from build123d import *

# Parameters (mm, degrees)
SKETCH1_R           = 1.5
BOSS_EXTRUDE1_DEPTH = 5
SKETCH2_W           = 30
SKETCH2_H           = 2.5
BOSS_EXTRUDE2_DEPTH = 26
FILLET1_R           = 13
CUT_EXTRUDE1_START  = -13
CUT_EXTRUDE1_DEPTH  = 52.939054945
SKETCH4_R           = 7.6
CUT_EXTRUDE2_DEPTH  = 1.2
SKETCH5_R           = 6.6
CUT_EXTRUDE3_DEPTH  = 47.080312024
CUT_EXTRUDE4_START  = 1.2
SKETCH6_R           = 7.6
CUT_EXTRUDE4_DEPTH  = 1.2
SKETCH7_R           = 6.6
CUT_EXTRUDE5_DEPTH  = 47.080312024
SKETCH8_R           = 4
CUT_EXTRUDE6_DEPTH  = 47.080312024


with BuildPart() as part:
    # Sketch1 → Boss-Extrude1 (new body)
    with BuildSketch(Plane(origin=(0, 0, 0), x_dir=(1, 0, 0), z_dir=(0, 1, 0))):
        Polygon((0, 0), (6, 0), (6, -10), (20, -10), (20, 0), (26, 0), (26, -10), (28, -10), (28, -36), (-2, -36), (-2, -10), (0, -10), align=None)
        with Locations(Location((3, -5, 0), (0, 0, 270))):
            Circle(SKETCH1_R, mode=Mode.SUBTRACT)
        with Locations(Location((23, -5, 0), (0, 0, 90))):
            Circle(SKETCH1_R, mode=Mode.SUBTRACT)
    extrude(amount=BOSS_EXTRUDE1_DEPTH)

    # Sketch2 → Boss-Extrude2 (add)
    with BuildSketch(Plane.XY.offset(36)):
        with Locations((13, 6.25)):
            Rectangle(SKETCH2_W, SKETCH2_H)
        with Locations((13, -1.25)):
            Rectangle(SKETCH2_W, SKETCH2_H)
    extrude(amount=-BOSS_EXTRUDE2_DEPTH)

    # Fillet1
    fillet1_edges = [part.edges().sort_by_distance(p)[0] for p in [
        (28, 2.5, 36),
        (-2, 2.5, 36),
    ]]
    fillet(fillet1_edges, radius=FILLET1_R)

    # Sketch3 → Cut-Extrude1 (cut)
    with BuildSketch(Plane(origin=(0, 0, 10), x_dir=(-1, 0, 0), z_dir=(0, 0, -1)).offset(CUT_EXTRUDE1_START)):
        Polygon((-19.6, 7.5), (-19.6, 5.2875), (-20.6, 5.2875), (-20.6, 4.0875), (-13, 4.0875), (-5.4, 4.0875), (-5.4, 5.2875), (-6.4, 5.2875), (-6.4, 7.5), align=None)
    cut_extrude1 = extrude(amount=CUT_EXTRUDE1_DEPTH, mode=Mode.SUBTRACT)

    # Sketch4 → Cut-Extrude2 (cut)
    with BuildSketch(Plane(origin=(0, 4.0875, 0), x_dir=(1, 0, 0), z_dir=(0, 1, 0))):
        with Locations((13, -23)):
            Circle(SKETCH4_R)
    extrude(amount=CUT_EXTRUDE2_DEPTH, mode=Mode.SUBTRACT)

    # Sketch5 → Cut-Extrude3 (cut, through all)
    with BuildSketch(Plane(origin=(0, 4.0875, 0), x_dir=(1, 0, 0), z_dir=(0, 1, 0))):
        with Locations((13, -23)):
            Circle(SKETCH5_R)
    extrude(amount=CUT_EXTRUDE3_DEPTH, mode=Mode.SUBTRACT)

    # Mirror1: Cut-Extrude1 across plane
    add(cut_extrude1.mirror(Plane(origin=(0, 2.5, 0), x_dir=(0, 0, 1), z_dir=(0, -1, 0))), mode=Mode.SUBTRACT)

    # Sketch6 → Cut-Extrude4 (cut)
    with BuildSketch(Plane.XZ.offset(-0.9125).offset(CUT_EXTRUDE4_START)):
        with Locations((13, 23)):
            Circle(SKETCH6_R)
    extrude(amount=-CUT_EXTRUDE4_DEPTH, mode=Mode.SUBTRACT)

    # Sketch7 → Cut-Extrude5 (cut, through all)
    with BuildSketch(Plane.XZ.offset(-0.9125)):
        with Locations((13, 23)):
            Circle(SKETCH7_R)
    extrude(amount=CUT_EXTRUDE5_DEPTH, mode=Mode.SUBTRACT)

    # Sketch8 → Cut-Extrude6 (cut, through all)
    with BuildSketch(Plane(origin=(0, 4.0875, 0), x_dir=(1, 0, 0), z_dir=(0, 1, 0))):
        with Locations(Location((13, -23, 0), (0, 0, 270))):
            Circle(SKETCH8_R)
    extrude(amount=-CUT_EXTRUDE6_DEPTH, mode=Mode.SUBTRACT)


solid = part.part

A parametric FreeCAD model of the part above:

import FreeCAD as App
import Part
import Sketcher

V = App.Vector


def edges_at(feature, points):
    """Names of the edges that pass closest to the given points."""
    edges = feature.Shape.Edges
    near = lambda p: min(range(len(edges)), key=lambda i: edges[i].distToShape(Part.Vertex(*p))[0])
    return sorted({f"Edge{near(p) + 1}" for p in points})

doc = App.newDocument("Part")
body = doc.addObject("PartDesign::Body", "Body")

# Sketch on XZ plane
sketch1 = body.newObject("Sketcher::SketchObject", "Sketch")
sketch1.AttachmentSupport = (doc.getObject("XZ_Plane"), [""])
sketch1.MapMode = "FlatFace"
sketch1.addGeometry(Part.LineSegment(V(6, 0, 0), V(0, 0, 0)), False)
sketch1.addGeometry(Part.LineSegment(V(0, 0, 0), V(0, 10, 0)), False)
sketch1.addGeometry(Part.LineSegment(V(0, 10, 0), V(-2, 10, 0)), False)
sketch1.addGeometry(Part.LineSegment(V(-2, 10, 0), V(-2, 36, 0)), False)
sketch1.addGeometry(Part.LineSegment(V(-2, 36, 0), V(28, 36, 0)), False)
sketch1.addGeometry(Part.LineSegment(V(28, 36, 0), V(28, 10, 0)), False)
sketch1.addGeometry(Part.LineSegment(V(28, 10, 0), V(26, 10, 0)), False)
sketch1.addGeometry(Part.LineSegment(V(26, 10, 0), V(26, 0, 0)), False)
sketch1.addGeometry(Part.LineSegment(V(26, 0, 0), V(20, 0, 0)), False)
sketch1.addGeometry(Part.LineSegment(V(20, 0, 0), V(20, 10, 0)), False)
sketch1.addGeometry(Part.LineSegment(V(20, 10, 0), V(6, 10, 0)), False)
sketch1.addGeometry(Part.LineSegment(V(6, 10, 0), V(6, 0, 0)), False)
sketch1.addGeometry(Part.Circle(V(23, 5, 0), V(0, 0, 1), 1.5), False)
sketch1.addGeometry(Part.Circle(V(3, 5, 0), V(0, 0, 1), 1.5), False)
sketch1.addConstraint(Sketcher.Constraint("Coincident", 0, 2, 1, 1))
sketch1.addConstraint(Sketcher.Constraint("Coincident", 1, 2, 2, 1))
sketch1.addConstraint(Sketcher.Constraint("Coincident", 2, 2, 3, 1))
sketch1.addConstraint(Sketcher.Constraint("Coincident", 3, 2, 4, 1))
sketch1.addConstraint(Sketcher.Constraint("Coincident", 4, 2, 5, 1))
sketch1.addConstraint(Sketcher.Constraint("Coincident", 5, 2, 6, 1))
sketch1.addConstraint(Sketcher.Constraint("Coincident", 6, 2, 7, 1))
sketch1.addConstraint(Sketcher.Constraint("Coincident", 7, 2, 8, 1))
sketch1.addConstraint(Sketcher.Constraint("Coincident", 8, 2, 9, 1))
sketch1.addConstraint(Sketcher.Constraint("Coincident", 9, 2, 10, 1))
sketch1.addConstraint(Sketcher.Constraint("Coincident", 10, 2, 11, 1))
sketch1.addConstraint(Sketcher.Constraint("Coincident", 11, 2, 0, 1))
sketch1.addConstraint(Sketcher.Constraint("Horizontal", 0))
sketch1.addConstraint(Sketcher.Constraint("Vertical", 1))
sketch1.addConstraint(Sketcher.Constraint("Horizontal", 2))
sketch1.addConstraint(Sketcher.Constraint("Vertical", 3))
sketch1.addConstraint(Sketcher.Constraint("Horizontal", 4))
sketch1.addConstraint(Sketcher.Constraint("Vertical", 5))
sketch1.addConstraint(Sketcher.Constraint("Horizontal", 6))
sketch1.addConstraint(Sketcher.Constraint("Vertical", 7))
sketch1.addConstraint(Sketcher.Constraint("Horizontal", 8))
sketch1.addConstraint(Sketcher.Constraint("Vertical", 9))
sketch1.addConstraint(Sketcher.Constraint("Horizontal", 10))
sketch1.addConstraint(Sketcher.Constraint("Vertical", 11))
sketch1.addConstraint(Sketcher.Constraint("Coincident", 0, 2, -1, 1))
sketch1.addConstraint(Sketcher.Constraint("Equal", 12, 13))
sketch1.addConstraint(Sketcher.Constraint("PointOnObject", 7, 2, -1))
sketch1.addConstraint(Sketcher.Constraint("Horizontal", 12, 3, 13, 3))
sketch1.addConstraint(Sketcher.Constraint("Horizontal", 2, 2, 5, 2))
sketch1.addConstraint(Sketcher.Constraint("Horizontal", 6, 2, 9, 2))
sketch1.addConstraint(Sketcher.Constraint("Equal", 2, 6))
sketch1.addConstraint(Sketcher.Constraint("Equal", 0, 8))
sketch1.addConstraint(Sketcher.Constraint("Diameter", 12, 3.0))
sketch1.addConstraint(Sketcher.Constraint("DistanceX", 0, 2, 0, 1, 6.0))
sketch1.addConstraint(Sketcher.Constraint("DistanceX", 2, 2, 2, 1, 2.0))
sketch1.addConstraint(Sketcher.Constraint("DistanceX", 4, 1, 4, 2, 30.0))
sketch1.addConstraint(Sketcher.Constraint("DistanceY", 1, 1, 1, 2, 10.0))
sketch1.addConstraint(Sketcher.Constraint("DistanceY", 3, 1, 3, 2, 26.0))
sketch1.addConstraint(Sketcher.Constraint("DistanceX", -1, 1, 12, 3, 23.0))
sketch1.addConstraint(Sketcher.Constraint("DistanceY", -1, 1, 12, 3, 5.0))
sketch1.addConstraint(Sketcher.Constraint("DistanceX", -1, 1, 13, 3, 3.0))
pad1 = body.newObject("PartDesign::Pad", "Pad")
pad1.Profile = sketch1
pad1.Length = 5
pad1.Reversed = True

# Sketch on XY plane
sketch2 = body.newObject("Sketcher::SketchObject", "Sketch001")
sketch2.AttachmentSupport = (doc.getObject("XY_Plane"), [""])
sketch2.MapMode = "FlatFace"
sketch2.AttachmentOffset = App.Placement(V(0, 0, 36), App.Rotation())
sketch2.addGeometry(Part.LineSegment(V(-2, 7.5, 0), V(-2, 5, 0)), False)
sketch2.addGeometry(Part.LineSegment(V(-2, 5, 0), V(28, 5, 0)), False)
sketch2.addGeometry(Part.LineSegment(V(28, 5, 0), V(28, 7.5, 0)), False)
sketch2.addGeometry(Part.LineSegment(V(28, 7.5, 0), V(-2, 7.5, 0)), False)
sketch2.addGeometry(Part.LineSegment(V(-2, 0, 0), V(-2, -2.5, 0)), False)
sketch2.addGeometry(Part.LineSegment(V(-2, -2.5, 0), V(28, -2.5, 0)), False)
sketch2.addGeometry(Part.LineSegment(V(28, -2.5, 0), V(28, 0, 0)), False)
sketch2.addGeometry(Part.LineSegment(V(28, 0, 0), V(-2, 0, 0)), False)
sketch2.addConstraint(Sketcher.Constraint("Coincident", 0, 2, 1, 1))
sketch2.addConstraint(Sketcher.Constraint("Coincident", 1, 2, 2, 1))
sketch2.addConstraint(Sketcher.Constraint("Coincident", 2, 2, 3, 1))
sketch2.addConstraint(Sketcher.Constraint("Coincident", 3, 2, 0, 1))
sketch2.addConstraint(Sketcher.Constraint("Coincident", 4, 2, 5, 1))
sketch2.addConstraint(Sketcher.Constraint("Coincident", 5, 2, 6, 1))
sketch2.addConstraint(Sketcher.Constraint("Coincident", 6, 2, 7, 1))
sketch2.addConstraint(Sketcher.Constraint("Coincident", 7, 2, 4, 1))
sketch2.addConstraint(Sketcher.Constraint("Vertical", 0))
sketch2.addConstraint(Sketcher.Constraint("Horizontal", 1))
sketch2.addConstraint(Sketcher.Constraint("Vertical", 2))
sketch2.addConstraint(Sketcher.Constraint("Horizontal", 3))
sketch2.addConstraint(Sketcher.Constraint("Vertical", 4))
sketch2.addConstraint(Sketcher.Constraint("Horizontal", 5))
sketch2.addConstraint(Sketcher.Constraint("Vertical", 6))
sketch2.addConstraint(Sketcher.Constraint("Horizontal", 7))
sketch2.addConstraint(Sketcher.Constraint("PointOnObject", 6, 2, -1))
sketch2.addConstraint(Sketcher.Constraint("Vertical", 3, 2, 4, 2))
sketch2.addConstraint(Sketcher.Constraint("Vertical", 2, 2, 5, 2))
sketch2.addConstraint(Sketcher.Constraint("Equal", 2, 4))
sketch2.addConstraint(Sketcher.Constraint("DistanceX", 1, 1, 1, 2, 30.0))
sketch2.addConstraint(Sketcher.Constraint("DistanceY", 0, 2, 0, 1, 2.5))
sketch2.addConstraint(Sketcher.Constraint("DistanceX", 0, 2, -1, 1, 2.0))
sketch2.addConstraint(Sketcher.Constraint("DistanceY", -1, 1, 0, 2, 5.0))
pad2 = body.newObject("PartDesign::Pad", "Pad001")
pad2.Profile = sketch2
pad2.Length = 26
pad2.Reversed = True
doc.recompute()

fillet = body.newObject("PartDesign::Fillet", "Fillet")
fillet.Base = (pad2, edges_at(pad2, [(28, 2.5, 36), (-2, 2.5, 36)]))
fillet.Radius = 13

# Sketch on XY plane
sketch3 = body.newObject("Sketcher::SketchObject", "Sketch002")
sketch3.AttachmentSupport = (doc.getObject("XY_Plane"), [""])
sketch3.MapMode = "FlatFace"
sketch3.AttachmentOffset = App.Placement(V(0, 0, 23), App.Rotation())
sketch3.addGeometry(Part.LineSegment(V(19.6, 7.5, 0), V(19.6, 5.3, 0)), False)
sketch3.addGeometry(Part.LineSegment(V(19.6, 5.3, 0), V(20.6, 5.3, 0)), False)
sketch3.addGeometry(Part.LineSegment(V(20.6, 5.3, 0), V(20.6, 4.1, 0)), False)
sketch3.addGeometry(Part.LineSegment(V(20.6, 4.1, 0), V(5.4, 4.1, 0)), False)
sketch3.addGeometry(Part.LineSegment(V(5.4, 4.1, 0), V(5.4, 5.3, 0)), False)
sketch3.addGeometry(Part.LineSegment(V(5.4, 5.3, 0), V(6.4, 5.3, 0)), False)
sketch3.addGeometry(Part.LineSegment(V(6.4, 5.3, 0), V(6.4, 7.5, 0)), False)
sketch3.addGeometry(Part.LineSegment(V(6.4, 7.5, 0), V(19.6, 7.5, 0)), False)
sketch3.addConstraint(Sketcher.Constraint("Coincident", 0, 2, 1, 1))
sketch3.addConstraint(Sketcher.Constraint("Coincident", 1, 2, 2, 1))
sketch3.addConstraint(Sketcher.Constraint("Coincident", 2, 2, 3, 1))
sketch3.addConstraint(Sketcher.Constraint("Coincident", 3, 2, 4, 1))
sketch3.addConstraint(Sketcher.Constraint("Coincident", 4, 2, 5, 1))
sketch3.addConstraint(Sketcher.Constraint("Coincident", 5, 2, 6, 1))
sketch3.addConstraint(Sketcher.Constraint("Coincident", 6, 2, 7, 1))
sketch3.addConstraint(Sketcher.Constraint("Coincident", 7, 2, 0, 1))
sketch3.addConstraint(Sketcher.Constraint("Vertical", 0))
sketch3.addConstraint(Sketcher.Constraint("Horizontal", 1))
sketch3.addConstraint(Sketcher.Constraint("Vertical", 2))
sketch3.addConstraint(Sketcher.Constraint("Horizontal", 3))
sketch3.addConstraint(Sketcher.Constraint("Vertical", 4))
sketch3.addConstraint(Sketcher.Constraint("Horizontal", 5))
sketch3.addConstraint(Sketcher.Constraint("Vertical", 6))
sketch3.addConstraint(Sketcher.Constraint("Horizontal", 7))
sketch3.addConstraint(Sketcher.Constraint("Horizontal", 1, 2, 4, 2))
sketch3.addConstraint(Sketcher.Constraint("Equal", 1, 5))
sketch3.addConstraint(Sketcher.Constraint("DistanceX", 1, 1, 1, 2, 1.0))
sketch3.addConstraint(Sketcher.Constraint("DistanceX", 3, 2, 3, 1, 15.2))
sketch3.addConstraint(Sketcher.Constraint("DistanceY", 2, 2, 2, 1, 1.2))
sketch3.addConstraint(Sketcher.Constraint("DistanceX", -1, 1, 0, 2, 19.6))
sketch3.addConstraint(Sketcher.Constraint("DistanceY", -1, 1, 6, 2, 7.5))
sketch3.addConstraint(Sketcher.Constraint("DistanceY", 0, 2, 0, 1, 2.2125))
pocket1 = body.newObject("PartDesign::Pocket", "Pocket")
pocket1.Profile = sketch3
pocket1.Length = 52.939055

# Sketch on XZ plane
sketch4 = body.newObject("Sketcher::SketchObject", "Sketch003")
sketch4.AttachmentSupport = (doc.getObject("XZ_Plane"), [""])
sketch4.MapMode = "FlatFace"
sketch4.AttachmentOffset = App.Placement(V(0, 0, -4.0875), App.Rotation())
sketch4.addGeometry(Part.Circle(V(13, 23, 0), V(0, 0, 1), 8), False)
sketch4.addConstraint(Sketcher.Constraint("Diameter", 0, 15.2))
sketch4.addConstraint(Sketcher.Constraint("DistanceX", -1, 1, 0, 3, 13.0))
sketch4.addConstraint(Sketcher.Constraint("DistanceY", -1, 1, 0, 3, 23.0))
pocket2 = body.newObject("PartDesign::Pocket", "Pocket001")
pocket2.Profile = sketch4
pocket2.Length = 1.2

# Sketch on XZ plane
sketch5 = body.newObject("Sketcher::SketchObject", "Sketch004")
sketch5.AttachmentSupport = (doc.getObject("XZ_Plane"), [""])
sketch5.MapMode = "FlatFace"
sketch5.AttachmentOffset = App.Placement(V(0, 0, -4.0875), App.Rotation())
sketch5.addGeometry(Part.Circle(V(13, 23, 0), V(0, 0, 1), 7), False)
sketch5.addConstraint(Sketcher.Constraint("Diameter", 0, 13.2))
sketch5.addConstraint(Sketcher.Constraint("DistanceX", -1, 1, 0, 3, 13.0))
sketch5.addConstraint(Sketcher.Constraint("DistanceY", -1, 1, 0, 3, 23.0))
pocket3 = body.newObject("PartDesign::Pocket", "Pocket002")
pocket3.Profile = sketch5
pocket3.Type = "ThroughAll"
doc.recompute()

datumplane = body.newObject("PartDesign::Plane", "DatumPlane")
datumplane.AttachmentSupport = (doc.getObject("XZ_Plane"), [""])
datumplane.MapMode = "FlatFace"
datumplane.AttachmentOffset = App.Placement(V(0, 0, -2.5), App.Rotation())
mirrored = body.newObject("PartDesign::Mirrored", "Mirrored")
mirrored.Originals = [pocket1]
mirrored.MirrorPlane = (datumplane, [""])
body.Tip = mirrored

# Sketch on XZ plane
sketch6 = body.newObject("Sketcher::SketchObject", "Sketch005")
sketch6.AttachmentSupport = (doc.getObject("XZ_Plane"), [""])
sketch6.MapMode = "FlatFace"
sketch6.AttachmentOffset = App.Placement(V(0, 0, 0.2875), App.Rotation())
sketch6.addGeometry(Part.Circle(V(13, 23, 0), V(0, 0, 1), 8), False)
sketch6.addConstraint(Sketcher.Constraint("Diameter", 0, 15.2))
sketch6.addConstraint(Sketcher.Constraint("DistanceX", -1, 1, 0, 3, 13.0))
sketch6.addConstraint(Sketcher.Constraint("DistanceY", -1, 1, 0, 3, 23.0))
pocket4 = body.newObject("PartDesign::Pocket", "Pocket003")
pocket4.Profile = sketch6
pocket4.Length = 1.2

# Sketch on XZ plane
sketch7 = body.newObject("Sketcher::SketchObject", "Sketch006")
sketch7.AttachmentSupport = (doc.getObject("XZ_Plane"), [""])
sketch7.MapMode = "FlatFace"
sketch7.AttachmentOffset = App.Placement(V(0, 0, -0.9125), App.Rotation())
sketch7.addGeometry(Part.Circle(V(13, 23, 0), V(0, 0, 1), 7), False)
sketch7.addConstraint(Sketcher.Constraint("Diameter", 0, 13.2))
sketch7.addConstraint(Sketcher.Constraint("DistanceX", -1, 1, 0, 3, 13.0))
sketch7.addConstraint(Sketcher.Constraint("DistanceY", -1, 1, 0, 3, 23.0))
pocket5 = body.newObject("PartDesign::Pocket", "Pocket004")
pocket5.Profile = sketch7
pocket5.Type = "ThroughAll"
pocket5.Reversed = True

# Sketch on XZ plane
sketch8 = body.newObject("Sketcher::SketchObject", "Sketch007")
sketch8.AttachmentSupport = (doc.getObject("XZ_Plane"), [""])
sketch8.MapMode = "FlatFace"
sketch8.AttachmentOffset = App.Placement(V(0, 0, -4.0875), App.Rotation())
sketch8.addGeometry(Part.Circle(V(13, 23, 0), V(0, 0, 1), 4), False)
sketch8.addConstraint(Sketcher.Constraint("Diameter", 0, 8.0))
sketch8.addConstraint(Sketcher.Constraint("DistanceX", -1, 1, 0, 3, 13.0))
sketch8.addConstraint(Sketcher.Constraint("DistanceY", -1, 1, 0, 3, 23.0))
pocket6 = body.newObject("PartDesign::Pocket", "Pocket005")
pocket6.Profile = sketch8
pocket6.Type = "ThroughAll"
pocket6.Reversed = True

doc.recompute()
